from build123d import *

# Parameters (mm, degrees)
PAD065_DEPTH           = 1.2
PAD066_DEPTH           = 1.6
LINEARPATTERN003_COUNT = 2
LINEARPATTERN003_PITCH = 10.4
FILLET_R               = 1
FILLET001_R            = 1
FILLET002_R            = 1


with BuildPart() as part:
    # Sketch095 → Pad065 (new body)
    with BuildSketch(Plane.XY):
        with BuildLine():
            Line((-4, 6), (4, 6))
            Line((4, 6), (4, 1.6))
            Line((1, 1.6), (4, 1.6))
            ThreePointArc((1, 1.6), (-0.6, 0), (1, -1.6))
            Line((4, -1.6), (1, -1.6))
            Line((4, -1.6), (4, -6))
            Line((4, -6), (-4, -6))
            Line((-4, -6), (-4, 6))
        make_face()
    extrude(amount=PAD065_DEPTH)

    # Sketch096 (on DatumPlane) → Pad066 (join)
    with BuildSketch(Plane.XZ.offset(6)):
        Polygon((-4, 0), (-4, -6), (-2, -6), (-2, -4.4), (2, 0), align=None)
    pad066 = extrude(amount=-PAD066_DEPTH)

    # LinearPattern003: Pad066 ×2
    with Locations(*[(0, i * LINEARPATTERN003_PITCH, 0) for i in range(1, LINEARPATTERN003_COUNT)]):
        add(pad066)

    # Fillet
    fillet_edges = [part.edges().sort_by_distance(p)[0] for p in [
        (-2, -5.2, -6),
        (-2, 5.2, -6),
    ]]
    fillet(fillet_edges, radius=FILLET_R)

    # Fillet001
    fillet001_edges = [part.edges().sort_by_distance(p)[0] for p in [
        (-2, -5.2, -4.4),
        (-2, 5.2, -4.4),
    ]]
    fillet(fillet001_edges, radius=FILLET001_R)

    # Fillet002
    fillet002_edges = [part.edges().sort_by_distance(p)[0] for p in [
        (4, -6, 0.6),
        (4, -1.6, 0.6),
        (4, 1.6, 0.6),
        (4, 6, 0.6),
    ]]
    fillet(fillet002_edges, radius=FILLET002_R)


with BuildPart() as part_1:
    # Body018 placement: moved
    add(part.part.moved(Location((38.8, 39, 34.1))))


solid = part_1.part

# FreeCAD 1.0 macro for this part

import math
import FreeCAD as App
import Part
import Sketcher

V = App.Vector


def edges_at(feature, points):
    """Names of the edges that pass closest to the given points."""
    edges = feature.Shape.Edges
    near = lambda p: min(range(len(edges)), key=lambda i: edges[i].distToShape(Part.Vertex(*p))[0])
    return sorted({f"Edge{near(p) + 1}" for p in points})


def add_polygon(sketch, points):
    """Adds a closed chain of lines whose ends are joined by coincident constraints."""
    first, n = sketch.GeometryCount, len(points)
    for a, b in zip(points, points[1:] + points[:1]):
        sketch.addGeometry(Part.LineSegment(App.Vector(*a, 0), App.Vector(*b, 0)), False)
    for i in range(n):
        sketch.addConstraint(Sketcher.Constraint("Coincident", first + i, 2, first + (i + 1) % n, 1))

doc = App.newDocument("Part")
params = doc.addObject("Spreadsheet::Sheet", "Params")
for row, (alias, value) in enumerate([
    ("sketch1_radius", "1.6 mm"),
    ("sketch1_width", "8 mm"),
    ("sketch1_width2", "3 mm"),
    ("sketch1_height", "12 mm"),
    ("pad1_length", "1.2 mm"),
    ("sketch2_width", "2 mm"),
    ("sketch2_width2", "6 mm"),
    ("sketch2_height", "1.6 mm"),
    ("pad2_length", "1.6 mm"),
    ("linearpattern_pitch", "10.4 mm"),
    ("fillet_radius", "1 mm"),
    ("fillet2_radius", "1 mm"),
    ("fillet3_radius", "1 mm"),
], start=1):
    params.set(f"A{row}", alias)
    params.set(f"B{row}", "=" + value)
    params.setAlias(f"B{row}", alias)

body = doc.addObject("PartDesign::Body", "Body")

# Sketch on XY plane
sketch1 = body.newObject("Sketcher::SketchObject", "Sketch")
sketch1.AttachmentSupport = (doc.getObject("XY_Plane"), [""])
sketch1.MapMode = "FlatFace"
sketch1.addGeometry(Part.LineSegment(V(4, 6, 0), V(-4, 6, 0)), False)
sketch1.addGeometry(Part.LineSegment(V(-4, 6, 0), V(-4, -6, 0)), False)
sketch1.addGeometry(Part.LineSegment(V(-4, -6, 0), V(4, -6, 0)), False)
sketch1.addGeometry(Part.LineSegment(V(4, -6, 0), V(4, -1.6, 0)), False)
sketch1.addGeometry(Part.LineSegment(V(4, -1.6, 0), V(1, -1.6, 0)), False)
sketch1.addGeometry(Part.ArcOfCircle(Part.Circle(V(1, 0, 0), V(0, 0, 1), 1.6), math.radians(90), math.radians(270)), False)
sketch1.addGeometry(Part.LineSegment(V(1, 1.6, 0), V(4, 1.6, 0)), False)
sketch1.addGeometry(Part.LineSegment(V(4, 1.6, 0), V(4, 6, 0)), False)
sketch1.addConstraint(Sketcher.Constraint("Coincident", 0, 2, 1, 1))
sketch1.addConstraint(Sketcher.Constraint("Coincident", 1, 2, 2, 1))
sketch1.addConstraint(Sketcher.Constraint("Coincident", 2, 2, 3, 1))
sketch1.addConstraint(Sketcher.Constraint("Coincident", 3, 2, 4, 1))
sketch1.addConstraint(Sketcher.Constraint("Tangent", 4, 2, 5, 2))
sketch1.addConstraint(Sketcher.Constraint("Tangent", 5, 1, 6, 1))
sketch1.addConstraint(Sketcher.Constraint("Coincident", 6, 2, 7, 1))
sketch1.addConstraint(Sketcher.Constraint("Coincident", 7, 2, 0, 1))
sketch1.addConstraint(Sketcher.Constraint("Horizontal", 0))
sketch1.addConstraint(Sketcher.Constraint("Vertical", 1))
sketch1.addConstraint(Sketcher.Constraint("Horizontal", 2))
sketch1.addConstraint(Sketcher.Constraint("Vertical", 3))
sketch1.addConstraint(Sketcher.Constraint("Horizontal", 4))
sketch1.addConstraint(Sketcher.Constraint("Horizontal", 6))
sketch1.addConstraint(Sketcher.Constraint("Vertical", 7))
sketch1.addConstraint(Sketcher.Constraint("Symmetric", 0, 2, 2, 2, -1, 1))
sketch1.addConstraint(Sketcher.Constraint("Symmetric", 3, 2, 6, 2, -1))
sketch1.addConstraint(Sketcher.Constraint("Radius", 5, 1.6))
sketch1.addConstraint(Sketcher.Constraint("DistanceX", 0, 2, 0, 1, 8.0))
sketch1.addConstraint(Sketcher.Constraint("DistanceX", 4, 2, 4, 1, 3.0))
sketch1.addConstraint(Sketcher.Constraint("DistanceY", 1, 2, 1, 1, 12.0))
sketch1.setExpression("Constraints[17]", "Params.sketch1_radius")
sketch1.setExpression("Constraints[18]", "Params.sketch1_width")
sketch1.setExpression("Constraints[19]", "Params.sketch1_width2")
sketch1.setExpression("Constraints[20]", "Params.sketch1_height")
pad1 = body.newObject("PartDesign::Pad", "Pad")
pad1.Profile = sketch1
pad1.setExpression("Length", "Params.pad1_length")

# Sketch on XZ plane
sketch2 = body.newObject("Sketcher::SketchObject", "Sketch001")
sketch2.AttachmentSupport = (doc.getObject("XZ_Plane"), [""])
sketch2.MapMode = "FlatFace"
sketch2.AttachmentOffset = App.Placement(V(0, 0, 6), App.Rotation())
add_polygon(sketch2, [(-4, 0), (-4, -6), (-2, -6), (-2, -4.4), (2, 0)])  # lines 0-4
sketch2.addConstraint(Sketcher.Constraint("Vertical", 0))
sketch2.addConstraint(Sketcher.Constraint("Horizontal", 1))
sketch2.addConstraint(Sketcher.Constraint("Vertical", 2))
sketch2.addConstraint(Sketcher.Constraint("Horizontal", 4))
sketch2.addConstraint(Sketcher.Constraint("PointOnObject", 3, 2, -1))
sketch2.addConstraint(Sketcher.Constraint("Equal", 4, 0))
sketch2.addConstraint(Sketcher.Constraint("DistanceX", 1, 1, 1, 2, 2.0))
sketch2.addConstraint(Sketcher.Constraint("DistanceX", 4, 2, 4, 1, 6.0))
sketch2.addConstraint(Sketcher.Constraint("DistanceY", 2, 1, 2, 2, 1.6))
sketch2.addConstraint(Sketcher.Constraint("DistanceX", 0, 2, -1, 1, 4.0))
sketch2.setExpression("Constraints[11]", "Params.sketch2_width")
sketch2.setExpression("Constraints[12]", "Params.sketch2_width2")
sketch2.setExpression("Constraints[13]", "Params.sketch2_height")
pad2 = body.newObject("PartDesign::Pad", "Pad001")
pad2.Profile = sketch2
pad2.setExpression("Length", "Params.pad2_length")
pad2.Reversed = True
doc.recompute()

linearpattern = body.newObject("PartDesign::LinearPattern", "LinearPattern")
linearpattern.Originals = [pad2]
linearpattern.Direction = (doc.getObject("Y_Axis"), [""])
linearpattern.Mode = "offset"
linearpattern.setExpression("Offset", "Params.linearpattern_pitch")
linearpattern.Occurrences = 2
body.Tip = linearpattern
doc.recompute()

fillet = body.newObject("PartDesign::Fillet", "Fillet")
fillet.Base = (linearpattern, edges_at(linearpattern, [(-2, -5.2, -6), (-2, 5.2, -6)]))
fillet.setExpression("Radius", "Params.fillet_radius")
doc.recompute()

fillet2 = body.newObject("PartDesign::Fillet", "Fillet001")
fillet2.Base = (fillet, edges_at(fillet, [(-2, -5.2, -4.4), (-2, 5.2, -4.4)]))
fillet2.setExpression("Radius", "Params.fillet2_radius")
doc.recompute()

fillet3 = body.newObject("PartDesign::Fillet", "Fillet002")
fillet3.Base = (fillet2, edges_at(fillet2, [
    (4, -6, 0.6),
    (4, -1.6, 0.6),
    (4, 1.6, 0.6),
    (4, 6, 0.6),
]))
fillet3.setExpression("Radius", "Params.fillet3_radius")
body2 = doc.addObject("PartDesign::Body", "Body001")
doc.recompute()

body.Placement = App.Placement(V(38.8, 39, 34.1), App.Rotation(V(0, 0, 1), 0))
boolean = body2.newObject("PartDesign::Boolean", "Boolean")
boolean.Type = "Fuse"
boolean.addObjects([body])

doc.recompute()
